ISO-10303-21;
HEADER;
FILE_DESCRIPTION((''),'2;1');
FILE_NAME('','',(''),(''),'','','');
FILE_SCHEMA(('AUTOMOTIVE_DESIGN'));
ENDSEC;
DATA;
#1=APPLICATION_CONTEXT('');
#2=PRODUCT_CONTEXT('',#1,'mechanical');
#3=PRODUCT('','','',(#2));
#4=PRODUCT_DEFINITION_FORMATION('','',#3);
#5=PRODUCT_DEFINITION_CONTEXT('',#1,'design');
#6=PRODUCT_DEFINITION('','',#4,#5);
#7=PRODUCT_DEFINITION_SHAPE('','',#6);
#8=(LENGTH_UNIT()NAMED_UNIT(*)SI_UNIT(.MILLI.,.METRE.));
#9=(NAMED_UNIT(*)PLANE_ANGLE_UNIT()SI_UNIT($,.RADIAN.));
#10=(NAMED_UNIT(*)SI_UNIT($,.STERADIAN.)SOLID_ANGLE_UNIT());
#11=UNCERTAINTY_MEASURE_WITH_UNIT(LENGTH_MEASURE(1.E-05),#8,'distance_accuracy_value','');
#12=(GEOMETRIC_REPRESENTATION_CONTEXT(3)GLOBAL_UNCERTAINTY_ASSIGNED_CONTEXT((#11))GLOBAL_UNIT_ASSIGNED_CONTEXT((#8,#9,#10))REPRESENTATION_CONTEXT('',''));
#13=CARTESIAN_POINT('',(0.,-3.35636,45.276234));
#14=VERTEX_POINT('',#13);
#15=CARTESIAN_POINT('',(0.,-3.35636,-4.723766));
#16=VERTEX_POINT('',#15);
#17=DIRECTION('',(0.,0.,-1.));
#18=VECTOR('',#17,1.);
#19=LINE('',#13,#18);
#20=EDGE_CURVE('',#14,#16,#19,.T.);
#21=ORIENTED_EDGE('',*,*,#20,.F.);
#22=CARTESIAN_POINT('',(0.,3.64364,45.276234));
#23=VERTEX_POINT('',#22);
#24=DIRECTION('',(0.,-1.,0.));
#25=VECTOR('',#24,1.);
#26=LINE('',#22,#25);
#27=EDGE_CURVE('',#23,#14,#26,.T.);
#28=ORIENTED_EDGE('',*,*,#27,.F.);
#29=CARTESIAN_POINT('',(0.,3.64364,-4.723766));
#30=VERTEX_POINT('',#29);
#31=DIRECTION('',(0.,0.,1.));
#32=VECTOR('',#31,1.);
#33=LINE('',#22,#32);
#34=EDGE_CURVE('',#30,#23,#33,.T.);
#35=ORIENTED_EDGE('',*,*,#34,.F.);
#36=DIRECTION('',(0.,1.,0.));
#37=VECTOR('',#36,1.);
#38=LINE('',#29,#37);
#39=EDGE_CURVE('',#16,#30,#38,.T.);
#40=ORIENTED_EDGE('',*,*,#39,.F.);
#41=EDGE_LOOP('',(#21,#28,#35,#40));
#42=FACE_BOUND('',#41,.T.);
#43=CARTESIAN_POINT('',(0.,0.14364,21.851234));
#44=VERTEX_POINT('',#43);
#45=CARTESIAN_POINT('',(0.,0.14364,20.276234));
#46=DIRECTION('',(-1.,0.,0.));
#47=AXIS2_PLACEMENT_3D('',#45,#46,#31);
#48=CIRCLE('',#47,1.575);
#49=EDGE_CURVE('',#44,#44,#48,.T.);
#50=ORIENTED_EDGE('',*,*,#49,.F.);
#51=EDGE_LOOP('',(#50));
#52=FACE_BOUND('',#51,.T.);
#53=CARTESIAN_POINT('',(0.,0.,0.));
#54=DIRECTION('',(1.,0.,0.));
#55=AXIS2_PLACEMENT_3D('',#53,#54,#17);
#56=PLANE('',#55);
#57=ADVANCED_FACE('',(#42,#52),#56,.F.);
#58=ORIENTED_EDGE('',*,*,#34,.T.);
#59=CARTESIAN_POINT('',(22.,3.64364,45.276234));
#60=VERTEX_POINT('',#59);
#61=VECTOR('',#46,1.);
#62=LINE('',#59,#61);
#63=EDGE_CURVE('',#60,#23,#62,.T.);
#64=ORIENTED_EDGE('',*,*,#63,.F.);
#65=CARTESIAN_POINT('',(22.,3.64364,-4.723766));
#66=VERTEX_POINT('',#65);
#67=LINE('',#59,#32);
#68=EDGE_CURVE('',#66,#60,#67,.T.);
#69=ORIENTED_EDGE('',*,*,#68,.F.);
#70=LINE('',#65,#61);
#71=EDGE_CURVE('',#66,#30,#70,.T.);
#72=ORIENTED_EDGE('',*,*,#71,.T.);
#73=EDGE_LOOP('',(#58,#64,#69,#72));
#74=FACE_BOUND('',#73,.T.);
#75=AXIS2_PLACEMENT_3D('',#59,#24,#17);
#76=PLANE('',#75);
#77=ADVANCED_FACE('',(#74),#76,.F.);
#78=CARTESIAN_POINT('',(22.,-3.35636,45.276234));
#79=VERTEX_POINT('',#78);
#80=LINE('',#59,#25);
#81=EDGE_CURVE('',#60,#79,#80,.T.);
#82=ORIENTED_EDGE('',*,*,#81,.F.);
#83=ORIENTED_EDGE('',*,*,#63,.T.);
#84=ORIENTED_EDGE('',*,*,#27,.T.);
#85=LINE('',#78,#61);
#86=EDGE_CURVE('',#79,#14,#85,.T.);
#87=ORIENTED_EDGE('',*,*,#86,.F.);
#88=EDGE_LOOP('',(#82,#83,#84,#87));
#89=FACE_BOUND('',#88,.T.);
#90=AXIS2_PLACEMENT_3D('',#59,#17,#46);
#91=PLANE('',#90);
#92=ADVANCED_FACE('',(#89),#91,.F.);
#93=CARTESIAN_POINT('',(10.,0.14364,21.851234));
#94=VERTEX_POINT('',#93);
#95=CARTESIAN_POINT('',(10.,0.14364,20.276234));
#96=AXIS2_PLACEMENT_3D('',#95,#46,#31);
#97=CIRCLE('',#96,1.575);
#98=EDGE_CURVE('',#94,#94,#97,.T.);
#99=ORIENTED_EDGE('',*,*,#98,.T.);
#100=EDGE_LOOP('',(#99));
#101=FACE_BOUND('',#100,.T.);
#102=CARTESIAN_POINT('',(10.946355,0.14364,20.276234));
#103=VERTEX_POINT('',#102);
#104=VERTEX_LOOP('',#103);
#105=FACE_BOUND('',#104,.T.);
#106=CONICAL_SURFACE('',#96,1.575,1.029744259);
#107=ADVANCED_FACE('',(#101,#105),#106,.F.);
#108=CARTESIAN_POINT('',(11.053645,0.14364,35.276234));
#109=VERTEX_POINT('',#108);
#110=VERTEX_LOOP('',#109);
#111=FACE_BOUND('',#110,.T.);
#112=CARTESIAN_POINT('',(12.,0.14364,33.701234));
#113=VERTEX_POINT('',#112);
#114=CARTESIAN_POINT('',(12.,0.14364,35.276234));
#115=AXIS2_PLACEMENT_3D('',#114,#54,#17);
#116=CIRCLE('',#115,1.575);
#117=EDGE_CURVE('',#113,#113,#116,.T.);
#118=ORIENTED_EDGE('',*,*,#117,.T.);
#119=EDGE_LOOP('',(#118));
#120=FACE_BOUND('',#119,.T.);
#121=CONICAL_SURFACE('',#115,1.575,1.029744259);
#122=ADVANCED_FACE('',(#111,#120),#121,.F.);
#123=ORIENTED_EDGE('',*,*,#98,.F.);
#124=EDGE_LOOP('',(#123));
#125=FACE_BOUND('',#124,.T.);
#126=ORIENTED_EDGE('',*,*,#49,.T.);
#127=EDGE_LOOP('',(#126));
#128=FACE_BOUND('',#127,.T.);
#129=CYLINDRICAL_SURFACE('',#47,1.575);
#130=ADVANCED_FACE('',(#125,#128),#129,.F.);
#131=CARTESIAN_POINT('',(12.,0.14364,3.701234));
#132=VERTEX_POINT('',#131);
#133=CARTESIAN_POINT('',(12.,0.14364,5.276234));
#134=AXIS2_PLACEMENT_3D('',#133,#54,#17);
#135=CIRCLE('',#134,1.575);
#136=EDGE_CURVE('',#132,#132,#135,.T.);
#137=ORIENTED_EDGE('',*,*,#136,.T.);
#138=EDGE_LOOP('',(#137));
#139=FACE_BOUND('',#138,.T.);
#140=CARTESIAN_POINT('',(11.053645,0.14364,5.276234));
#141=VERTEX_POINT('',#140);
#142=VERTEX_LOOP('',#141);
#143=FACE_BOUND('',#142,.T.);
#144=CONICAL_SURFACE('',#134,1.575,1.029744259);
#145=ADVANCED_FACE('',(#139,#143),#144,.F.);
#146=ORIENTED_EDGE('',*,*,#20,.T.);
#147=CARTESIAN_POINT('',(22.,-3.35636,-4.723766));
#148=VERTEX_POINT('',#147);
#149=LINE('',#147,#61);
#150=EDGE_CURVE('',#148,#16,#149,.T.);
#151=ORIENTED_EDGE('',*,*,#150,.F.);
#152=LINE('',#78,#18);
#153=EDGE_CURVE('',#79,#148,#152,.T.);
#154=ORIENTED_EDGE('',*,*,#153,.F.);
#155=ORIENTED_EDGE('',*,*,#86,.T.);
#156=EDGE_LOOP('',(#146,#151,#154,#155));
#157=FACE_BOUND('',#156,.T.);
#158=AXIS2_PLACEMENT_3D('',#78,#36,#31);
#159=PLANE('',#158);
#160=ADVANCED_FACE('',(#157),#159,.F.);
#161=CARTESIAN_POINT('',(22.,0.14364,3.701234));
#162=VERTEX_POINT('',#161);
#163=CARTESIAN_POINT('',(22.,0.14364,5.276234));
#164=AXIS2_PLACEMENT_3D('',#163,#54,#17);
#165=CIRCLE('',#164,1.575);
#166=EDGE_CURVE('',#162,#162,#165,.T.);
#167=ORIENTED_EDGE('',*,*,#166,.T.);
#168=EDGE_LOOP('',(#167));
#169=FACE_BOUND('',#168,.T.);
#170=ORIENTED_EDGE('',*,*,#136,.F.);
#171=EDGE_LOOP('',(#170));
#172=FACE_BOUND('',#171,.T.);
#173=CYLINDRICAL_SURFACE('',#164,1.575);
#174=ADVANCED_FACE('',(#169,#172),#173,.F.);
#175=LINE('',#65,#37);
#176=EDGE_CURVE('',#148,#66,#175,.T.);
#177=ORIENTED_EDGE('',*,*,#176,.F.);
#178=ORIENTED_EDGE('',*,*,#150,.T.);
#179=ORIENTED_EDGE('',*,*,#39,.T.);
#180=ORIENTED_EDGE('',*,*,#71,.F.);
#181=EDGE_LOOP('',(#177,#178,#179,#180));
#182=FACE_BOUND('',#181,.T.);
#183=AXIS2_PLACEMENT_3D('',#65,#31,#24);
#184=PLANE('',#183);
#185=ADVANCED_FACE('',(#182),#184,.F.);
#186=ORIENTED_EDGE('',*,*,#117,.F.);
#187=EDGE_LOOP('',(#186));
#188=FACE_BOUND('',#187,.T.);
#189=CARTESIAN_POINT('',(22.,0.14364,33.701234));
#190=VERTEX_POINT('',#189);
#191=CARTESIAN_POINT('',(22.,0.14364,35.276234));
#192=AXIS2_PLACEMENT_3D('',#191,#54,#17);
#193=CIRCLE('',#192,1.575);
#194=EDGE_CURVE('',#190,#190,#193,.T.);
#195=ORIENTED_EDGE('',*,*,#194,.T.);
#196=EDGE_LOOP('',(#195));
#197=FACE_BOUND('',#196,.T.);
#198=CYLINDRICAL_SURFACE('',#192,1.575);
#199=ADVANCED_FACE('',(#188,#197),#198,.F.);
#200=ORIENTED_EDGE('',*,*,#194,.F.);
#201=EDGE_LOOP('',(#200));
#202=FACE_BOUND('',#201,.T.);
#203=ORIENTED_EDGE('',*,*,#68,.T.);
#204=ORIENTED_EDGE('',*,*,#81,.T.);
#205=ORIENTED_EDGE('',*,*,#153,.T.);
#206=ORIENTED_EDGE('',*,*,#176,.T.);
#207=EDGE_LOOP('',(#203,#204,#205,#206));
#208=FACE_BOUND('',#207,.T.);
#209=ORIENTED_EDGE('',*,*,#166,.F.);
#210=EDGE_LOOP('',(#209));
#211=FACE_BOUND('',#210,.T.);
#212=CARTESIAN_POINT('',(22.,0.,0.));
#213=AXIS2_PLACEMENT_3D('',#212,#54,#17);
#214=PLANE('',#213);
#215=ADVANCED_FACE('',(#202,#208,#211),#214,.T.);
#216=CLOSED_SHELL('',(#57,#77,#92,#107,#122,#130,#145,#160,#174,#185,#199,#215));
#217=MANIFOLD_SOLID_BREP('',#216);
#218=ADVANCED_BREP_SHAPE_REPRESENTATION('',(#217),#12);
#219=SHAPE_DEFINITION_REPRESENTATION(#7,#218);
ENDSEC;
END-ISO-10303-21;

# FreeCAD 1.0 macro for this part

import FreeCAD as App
import Part
import Sketcher

doc = App.newDocument("Part")
body = doc.addObject("PartDesign::Body", "Body")

# Sketch on YZ plane
sketch1 = doc.addObject("Sketcher::SketchObject", "Sketch")
body.addObject(sketch1)
sketch1.AttachmentSupport = (doc.YZ_Plane, [""])
sketch1.MapMode = "FlatFace"
sketch1.addGeometry([
    Part.LineSegment(App.Vector(3.64364, 45.276234, 0), App.Vector(-3.35636, 45.276234, 0)),
    Part.LineSegment(App.Vector(-3.35636, 45.276234, 0), App.Vector(-3.35636, -4.723766, 0)),
    Part.LineSegment(App.Vector(-3.35636, -4.723766, 0), App.Vector(3.64364, -4.723766, 0)),
    Part.LineSegment(App.Vector(3.64364, -4.723766, 0), App.Vector(3.64364, 45.276234, 0)),
], False)
sketch1.addConstraint([
    Sketcher.Constraint("Coincident", 0, 2, 1, 1),
    Sketcher.Constraint("Coincident", 1, 2, 2, 1),
    Sketcher.Constraint("Coincident", 2, 2, 3, 1),
    Sketcher.Constraint("Coincident", 3, 2, 0, 1),
    Sketcher.Constraint("Horizontal", 0),
    Sketcher.Constraint("Vertical", 1),
    Sketcher.Constraint("Horizontal", 2),
    Sketcher.Constraint("Vertical", 3),
    Sketcher.Constraint("DistanceX", 0, 2, 0, 1, 7.0),
    Sketcher.Constraint("DistanceY", 1, 2, 1, 1, 50.0),
    Sketcher.Constraint("DistanceX", 0, 2, -1, 1, 3.35636),
    Sketcher.Constraint("DistanceY", -1, 1, 0, 2, 45.276234),
])
pad1 = doc.addObject("PartDesign::Pad", "Pad")
body.addObject(pad1)
pad1.Profile = sketch1
pad1.Length = 22

# Sketch on YZ plane
sketch2 = doc.addObject("Sketcher::SketchObject", "Sketch001")
body.addObject(sketch2)
sketch2.AttachmentSupport = (doc.YZ_Plane, [""])
sketch2.MapMode = "FlatFace"
sketch2.AttachmentOffset = App.Placement(App.Vector(0, 0, 22), App.Rotation())
sketch2.addGeometry([
    Part.Circle(App.Vector(0.14364, 35.276234, 0), App.Vector(0, 0, 1), 1.575),
    Part.Circle(App.Vector(0.14364, 5.276234, 0), App.Vector(0, 0, 1), 1.575),
], False)
sketch2.addConstraint([
    Sketcher.Constraint("Equal", 0, 1),
    Sketcher.Constraint("Vertical", 0, 3, 1, 3),
    Sketcher.Constraint("Diameter", 0, 3.15),
    Sketcher.Constraint("DistanceY", 1, 3, 0, 3, 30.0),
    Sketcher.Constraint("DistanceX", -1, 1, 0, 3, 0.14364),
    Sketcher.Constraint("DistanceY", -1, 1, 0, 3, 35.276234),
])
doc.recompute()
hole = doc.addObject("PartDesign::Hole", "Hole")
body.addObject(hole)
hole.Profile = sketch2
hole.ThreadType = "None"
hole.Diameter = 3.15
hole.DepthType = "Dimension"
hole.Depth = 10
hole.DrillPoint = "Angled"
hole.DrillPointAngle = 118

# Sketch on YZ plane
sketch3 = doc.addObject("Sketcher::SketchObject", "Sketch002")
body.addObject(sketch3)
sketch3.AttachmentSupport = (doc.YZ_Plane, [""])
sketch3.MapMode = "FlatFace"
sketch3.addGeometry(Part.Circle(App.Vector(0.14364, 20.276234, 0), App.Vector(0, 0, 1), 1.575), False)
sketch3.addConstraint([
    Sketcher.Constraint("Diameter", 0, 3.15),
    Sketcher.Constraint("DistanceX", -1, 1, 0, 3, 0.14364),
    Sketcher.Constraint("DistanceY", -1, 1, 0, 3, 20.276234),
])
doc.recompute()
hole2 = doc.addObject("PartDesign::Hole", "Hole001")
body.addObject(hole2)
hole2.Profile = sketch3
hole2.ThreadType = "None"
hole2.Diameter = 3.15
hole2.DepthType = "Dimension"
hole2.Depth = 10
hole2.DrillPoint = "Angled"
hole2.DrillPointAngle = 118
hole2.Reversed = True

doc.recompute()
